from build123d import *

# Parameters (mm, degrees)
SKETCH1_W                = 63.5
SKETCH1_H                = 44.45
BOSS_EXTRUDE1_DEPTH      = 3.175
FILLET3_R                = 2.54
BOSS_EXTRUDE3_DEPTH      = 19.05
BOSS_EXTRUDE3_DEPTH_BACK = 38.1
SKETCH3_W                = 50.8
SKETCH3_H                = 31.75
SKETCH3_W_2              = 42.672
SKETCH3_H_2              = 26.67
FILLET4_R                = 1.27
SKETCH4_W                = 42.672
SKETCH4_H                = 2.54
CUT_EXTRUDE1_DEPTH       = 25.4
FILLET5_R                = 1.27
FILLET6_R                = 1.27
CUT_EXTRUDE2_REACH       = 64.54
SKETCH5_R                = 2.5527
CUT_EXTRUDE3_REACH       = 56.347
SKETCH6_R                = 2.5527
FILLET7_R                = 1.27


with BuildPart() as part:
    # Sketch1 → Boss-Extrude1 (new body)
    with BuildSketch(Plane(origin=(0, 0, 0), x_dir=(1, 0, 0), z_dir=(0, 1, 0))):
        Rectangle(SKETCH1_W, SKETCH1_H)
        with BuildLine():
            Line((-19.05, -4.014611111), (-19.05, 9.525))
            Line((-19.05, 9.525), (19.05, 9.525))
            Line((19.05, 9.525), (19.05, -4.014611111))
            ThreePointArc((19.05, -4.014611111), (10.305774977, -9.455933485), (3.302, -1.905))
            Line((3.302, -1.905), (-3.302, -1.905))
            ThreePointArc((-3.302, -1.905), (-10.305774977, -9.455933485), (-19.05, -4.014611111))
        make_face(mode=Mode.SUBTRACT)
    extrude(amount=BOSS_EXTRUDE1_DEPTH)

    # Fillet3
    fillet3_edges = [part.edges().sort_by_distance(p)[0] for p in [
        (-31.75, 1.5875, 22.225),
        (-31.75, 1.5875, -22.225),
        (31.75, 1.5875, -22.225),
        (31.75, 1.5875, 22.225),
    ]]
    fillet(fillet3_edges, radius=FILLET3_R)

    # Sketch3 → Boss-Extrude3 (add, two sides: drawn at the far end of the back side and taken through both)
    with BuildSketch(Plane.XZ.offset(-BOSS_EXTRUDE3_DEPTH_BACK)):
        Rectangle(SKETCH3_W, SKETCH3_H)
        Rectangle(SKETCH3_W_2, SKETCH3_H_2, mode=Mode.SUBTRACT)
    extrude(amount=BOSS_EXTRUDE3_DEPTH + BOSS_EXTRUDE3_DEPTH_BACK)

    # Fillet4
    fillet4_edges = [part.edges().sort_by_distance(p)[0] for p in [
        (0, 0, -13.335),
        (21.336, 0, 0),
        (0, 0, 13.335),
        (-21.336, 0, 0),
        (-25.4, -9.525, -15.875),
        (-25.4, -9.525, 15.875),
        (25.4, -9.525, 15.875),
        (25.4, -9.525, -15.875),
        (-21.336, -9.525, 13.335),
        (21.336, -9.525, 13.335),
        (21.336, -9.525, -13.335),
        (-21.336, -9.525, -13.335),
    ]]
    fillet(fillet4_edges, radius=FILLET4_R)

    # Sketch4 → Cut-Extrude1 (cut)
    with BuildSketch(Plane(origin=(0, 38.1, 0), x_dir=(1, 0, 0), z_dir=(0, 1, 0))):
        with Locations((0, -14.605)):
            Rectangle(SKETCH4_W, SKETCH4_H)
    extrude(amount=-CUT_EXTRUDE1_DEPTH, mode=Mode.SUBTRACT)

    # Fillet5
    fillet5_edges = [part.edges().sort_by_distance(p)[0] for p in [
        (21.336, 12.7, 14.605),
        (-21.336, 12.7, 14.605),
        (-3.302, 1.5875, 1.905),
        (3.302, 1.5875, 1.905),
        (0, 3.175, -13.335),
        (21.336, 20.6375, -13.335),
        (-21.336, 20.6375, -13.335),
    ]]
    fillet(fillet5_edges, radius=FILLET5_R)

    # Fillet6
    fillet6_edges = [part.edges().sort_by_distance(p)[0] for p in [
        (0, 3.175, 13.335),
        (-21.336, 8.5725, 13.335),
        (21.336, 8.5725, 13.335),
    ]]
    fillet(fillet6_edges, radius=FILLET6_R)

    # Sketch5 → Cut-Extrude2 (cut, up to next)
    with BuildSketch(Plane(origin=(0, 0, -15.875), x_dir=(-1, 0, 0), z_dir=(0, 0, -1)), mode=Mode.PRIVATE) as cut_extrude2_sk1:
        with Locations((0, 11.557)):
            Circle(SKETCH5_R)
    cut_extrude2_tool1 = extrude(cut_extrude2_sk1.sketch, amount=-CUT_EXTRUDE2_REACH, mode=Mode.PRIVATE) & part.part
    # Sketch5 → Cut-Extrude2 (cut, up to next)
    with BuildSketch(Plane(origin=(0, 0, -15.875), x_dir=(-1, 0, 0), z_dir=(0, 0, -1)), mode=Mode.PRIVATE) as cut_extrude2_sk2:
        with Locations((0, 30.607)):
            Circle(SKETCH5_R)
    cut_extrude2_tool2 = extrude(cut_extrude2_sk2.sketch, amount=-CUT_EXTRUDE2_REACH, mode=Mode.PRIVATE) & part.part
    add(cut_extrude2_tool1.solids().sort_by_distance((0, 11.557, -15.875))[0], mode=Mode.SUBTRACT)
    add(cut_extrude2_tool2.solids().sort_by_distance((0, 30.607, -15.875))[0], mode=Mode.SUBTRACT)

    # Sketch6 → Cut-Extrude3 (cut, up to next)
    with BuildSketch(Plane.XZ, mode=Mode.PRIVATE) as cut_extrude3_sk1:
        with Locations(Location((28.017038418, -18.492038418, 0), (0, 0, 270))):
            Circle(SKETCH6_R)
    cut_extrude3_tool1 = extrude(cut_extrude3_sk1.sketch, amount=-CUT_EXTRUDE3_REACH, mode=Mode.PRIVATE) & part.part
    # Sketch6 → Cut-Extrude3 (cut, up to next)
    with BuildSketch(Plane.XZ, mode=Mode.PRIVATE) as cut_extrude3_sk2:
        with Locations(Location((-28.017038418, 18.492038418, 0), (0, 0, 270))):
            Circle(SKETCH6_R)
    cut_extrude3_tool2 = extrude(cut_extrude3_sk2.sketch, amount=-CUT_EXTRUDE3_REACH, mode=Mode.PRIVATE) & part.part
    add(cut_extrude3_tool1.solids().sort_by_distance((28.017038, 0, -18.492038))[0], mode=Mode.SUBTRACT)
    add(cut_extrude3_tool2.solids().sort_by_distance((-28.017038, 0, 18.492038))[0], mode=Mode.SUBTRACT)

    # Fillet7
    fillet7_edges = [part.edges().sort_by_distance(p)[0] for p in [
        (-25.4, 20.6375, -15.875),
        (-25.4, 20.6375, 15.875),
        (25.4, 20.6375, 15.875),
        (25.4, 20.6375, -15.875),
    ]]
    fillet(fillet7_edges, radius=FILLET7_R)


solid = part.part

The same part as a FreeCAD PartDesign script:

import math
import FreeCAD as App
import Part
import Sketcher
Q = App.Units.Quantity


def edges_at(feature, points):
    """Names of the edges that pass closest to the given points."""
    edges = feature.Shape.Edges
    near = lambda p: min(range(len(edges)), key=lambda i: edges[i].distToShape(Part.Vertex(*p))[0])
    return sorted({f"Edge{near(p) + 1}" for p in points})


def add_polygon(sketch, points):
    """Adds a closed chain of lines whose ends are joined by coincident constraints."""
    first, n = sketch.GeometryCount, len(points)
    for a, b in zip(points, points[1:] + points[:1]):
        sketch.addGeometry(Part.LineSegment(App.Vector(*a, 0), App.Vector(*b, 0)), False)
    for i in range(n):
        sketch.addConstraint(Sketcher.Constraint("Coincident", first + i, 2, first + (i + 1) % n, 1))

doc = App.newDocument("Part")
params = doc.addObject("Spreadsheet::Sheet", "Params")
for row, (alias, value) in enumerate([
    ("sketch1_width", "2.5 in"),
    ("sketch1_width2", "1.5 in"),
    ("sketch1_width3", "0.26 in"),
    ("sketch1_height", "1.75 in"),
    ("pad1_length", "0.125 in"),
    ("fillet_radius", "0.1 in"),
    ("sketch2_width", "2 in"),
    ("sketch2_width2", "1.68 in"),
    ("sketch2_height", "1.25 in"),
    ("sketch2_height2", "1.05 in"),
    ("pad2_length", "0.75 in"),
    ("pad2_length2", "1.5 in"),
    ("fillet2_radius", "0.05 in"),
    ("sketch3_height", "0.1 in"),
    ("sketch3_width", "1.68 in"),
    ("pocket1_length", "1 in"),
    ("fillet3_radius", "0.05 in"),
    ("fillet4_radius", "0.05 in"),
    ("sketch4_diameter", "0.201 in"),
    ("sketch5_diameter", "0.201 in"),
    ("sketch6_diameter", "0.201 in"),
    ("sketch7_diameter", "0.201 in"),
    ("fillet5_radius", "0.05 in"),
], start=1):
    params.set(f"A{row}", alias)
    params.set(f"B{row}", "=" + value)
    params.setAlias(f"B{row}", alias)

body = doc.addObject("PartDesign::Body", "Body")

sketch1 = body.newObject("Sketcher::SketchObject", "Sketch")
sketch1.AttachmentSupport = (doc.getObject("XZ_Plane"), [""])
sketch1.MapMode = "FlatFace"
add_polygon(sketch1, [(-32, -22), (-32, 22), (32, 22), (32, -22)])
sketch1.addGeometry(Part.ArcOfCircle(Part.Circle(App.Vector(-11, 1, 0), App.Vector(0, 0, 1), 8), math.radians(3), math.radians(161)), False)
sketch1.addGeometry(Part.LineSegment(App.Vector(-19, 4, 0), App.Vector(-19, -10, 0)), False)
sketch1.addGeometry(Part.LineSegment(App.Vector(-19, -10, 0), App.Vector(19, -10, 0)), False)
sketch1.addGeometry(Part.LineSegment(App.Vector(19, -10, 0), App.Vector(19, 4, 0)), False)
sketch1.addGeometry(Part.ArcOfCircle(Part.Circle(App.Vector(11, 1, 0), App.Vector(0, 0, 1), 8), math.radians(19), math.radians(177)), False)
sketch1.addGeometry(Part.LineSegment(App.Vector(3, 2, 0), App.Vector(-3, 2, 0)), False)
sketch1.addConstraint([
    Sketcher.Constraint("Coincident", 4, 2, 5, 1),
    Sketcher.Constraint("Coincident", 5, 2, 6, 1),
    Sketcher.Constraint("Coincident", 6, 2, 7, 1),
    Sketcher.Constraint("Coincident", 7, 2, 8, 1),
    Sketcher.Constraint("Coincident", 8, 2, 9, 1),
    Sketcher.Constraint("Coincident", 9, 2, 4, 1),
    Sketcher.Constraint("Vertical", 0),
    Sketcher.Constraint("Horizontal", 1),
    Sketcher.Constraint("Vertical", 2),
    Sketcher.Constraint("Horizontal", 3),
    Sketcher.Constraint("Vertical", 5),
    Sketcher.Constraint("Horizontal", 6),
    Sketcher.Constraint("Vertical", 7),
    Sketcher.Constraint("Horizontal", 9),
    Sketcher.Constraint("Equal", 4, 8),
    Sketcher.Constraint("Symmetric", 0, 2, 2, 2, -1, 1),
    Sketcher.Constraint("Symmetric", 4, 3, 8, 3, -2),
    Sketcher.Constraint("Horizontal", 4, 2, 7, 2),
    Sketcher.Constraint("DistanceX", 1, 1, 1, 2, Q("2.5 in")),
    Sketcher.Constraint("DistanceX", 6, 1, 6, 2, Q("1.5 in")),
    Sketcher.Constraint("DistanceX", 9, 2, 9, 1, Q("0.26 in")),
    Sketcher.Constraint("DistanceY", 0, 1, 0, 2, Q("1.75 in")),
    Sketcher.Constraint("DistanceY", 3, 2, 5, 2, Q("0.5 in")),
    Sketcher.Constraint("DistanceY", 6, 2, 8, 2, Q("0.45 in")),
    Sketcher.Constraint("Radius", 4, Q("8.09177 mm")),
    Sketcher.Constraint("DistanceY", 5, 2, 5, 1, Q("13.539611 mm")),
])
sketch1.setExpression("Constraints[22]", "Params.sketch1_width")
sketch1.setExpression("Constraints[23]", "Params.sketch1_width2")
sketch1.setExpression("Constraints[24]", "Params.sketch1_width3")
sketch1.setExpression("Constraints[25]", "Params.sketch1_height")
pad1 = body.newObject("PartDesign::Pad", "Pad")
pad1.Profile = sketch1
pad1.setExpression("Length", "Params.pad1_length")
pad1.Reversed = True
doc.recompute()

fillet = body.newObject("PartDesign::Fillet", "Fillet")
fillet.Base = (pad1, edges_at(pad1, [
    (-31.75, 1.587, 22.225),
    (-31.75, 1.587, -22.225),
    (31.75, 1.587, -22.225),
    (31.75, 1.587, 22.225),
]))
fillet.setExpression("Radius", "Params.fillet_radius")

sketch2 = body.newObject("Sketcher::SketchObject", "Sketch001")
sketch2.AttachmentSupport = (doc.getObject("XZ_Plane"), [""])
sketch2.MapMode = "FlatFace"
add_polygon(sketch2, [(-25, 16), (-25, -16), (25, -16), (25, 16)])
add_polygon(sketch2, [(21, -13), (-21, -13), (-21, 13), (21, 13)])
sketch2.addConstraint([
    Sketcher.Constraint("Vertical", 0),
    Sketcher.Constraint("Horizontal", 1),
    Sketcher.Constraint("Vertical", 2),
    Sketcher.Constraint("Horizontal", 3),
    Sketcher.Constraint("Horizontal", 4),
    Sketcher.Constraint("Vertical", 5),
    Sketcher.Constraint("Horizontal", 6),
    Sketcher.Constraint("Vertical", 7),
    Sketcher.Constraint("Symmetric", 0, 2, 2, 2, -1, 1),
    Sketcher.Constraint("Symmetric", 4, 2, 6, 2, -1, 1),
    Sketcher.Constraint("DistanceX", 1, 1, 1, 2, Q("2 in")),
    Sketcher.Constraint("DistanceX", 4, 2, 4, 1, Q("1.68 in")),
    Sketcher.Constraint("DistanceY", 0, 2, 0, 1, Q("1.25 in")),
    Sketcher.Constraint("DistanceY", 5, 1, 5, 2, Q("1.05 in")),
])
sketch2.setExpression("Constraints[18]", "Params.sketch2_width")
sketch2.setExpression("Constraints[19]", "Params.sketch2_width2")
sketch2.setExpression("Constraints[20]", "Params.sketch2_height")
sketch2.setExpression("Constraints[21]", "Params.sketch2_height2")
pad2 = body.newObject("PartDesign::Pad", "Pad001")
pad2.Profile = sketch2
pad2.Type = "TwoLengths"
pad2.setExpression("Length", "Params.pad2_length")
pad2.setExpression("Length2", "Params.pad2_length2")
doc.recompute()

fillet2 = body.newObject("PartDesign::Fillet", "Fillet001")
fillet2.Base = (pad2, edges_at(pad2, [
    (0, 0, -13.335),
    (21.336, 0, 0),
    (0, 0, 13.335),
    (-21.336, 0, 0),
    (-25.4, -9.525, -15.875),
    (-25.4, -9.525, 15.875),
    (25.4, -9.525, 15.875),
    (25.4, -9.525, -15.875),
    (-21.336, -9.525, 13.335),
    (21.336, -9.525, 13.335),
    (21.336, -9.525, -13.335),
    (-21.336, -9.525, -13.335),
]))
fillet2.setExpression("Radius", "Params.fillet2_radius")

sketch3 = body.newObject("Sketcher::SketchObject", "Sketch002")
sketch3.AttachmentSupport = (doc.getObject("XZ_Plane"), [""])
sketch3.MapMode = "FlatFace"
sketch3.AttachmentOffset = App.Placement(App.Vector(0, 0, -1.5 * 25.4), App.Rotation())
add_polygon(sketch3, [(-21.3, 13.3), (-21.3, 15.9), (21.3, 15.9), (21.3, 13.3)])
sketch3.addConstraint([
    Sketcher.Constraint("Vertical", 0),
    Sketcher.Constraint("Horizontal", 1),
    Sketcher.Constraint("Vertical", 2),
    Sketcher.Constraint("Horizontal", 3),
    Sketcher.Constraint("DistanceY", 0, 1, 0, 2, Q("0.1 in")),
    Sketcher.Constraint("DistanceX", 1, 1, 1, 2, Q("1.68 in")),
    Sketcher.Constraint("DistanceX", 0, 2, -1, 1, Q("0.84 in")),
    Sketcher.Constraint("DistanceY", -1, 1, 0, 2, Q("0.625 in")),
])
sketch3.setExpression("Constraints[8]", "Params.sketch3_height")
sketch3.setExpression("Constraints[9]", "Params.sketch3_width")
pocket1 = body.newObject("PartDesign::Pocket", "Pocket")
pocket1.Profile = sketch3
pocket1.setExpression("Length", "Params.pocket1_length")
pocket1.Reversed = True
doc.recompute()

fillet3 = body.newObject("PartDesign::Fillet", "Fillet002")
fillet3.Base = (pocket1, edges_at(pocket1, [
    (21.336, 12.7, 14.605),
    (-21.336, 12.7, 14.605),
    (-3.302, 1.587, 1.905),
    (3.302, 1.587, 1.905),
    (0, 3.175, -13.335),
    (21.336, 20.637, -13.335),
    (-21.336, 20.637, -13.335),
]))
fillet3.setExpression("Radius", "Params.fillet3_radius")
doc.recompute()

fillet4 = body.newObject("PartDesign::Fillet", "Fillet003")
fillet4.Base = (fillet3, edges_at(fillet3, [(0, 3.175, 13.335), (-21.336, 8.572, 13.335), (21.336, 8.572, 13.335)]))
fillet4.setExpression("Radius", "Params.fillet4_radius")

sketch4 = body.newObject("Sketcher::SketchObject", "Sketch003")
sketch4.AttachmentSupport = (doc.getObject("XY_Plane"), [""])
sketch4.MapMode = "FlatFace"
sketch4.AttachmentOffset = App.Placement(App.Vector(0, 0, -0.625 * 25.4), App.Rotation())
sketch4.addGeometry(Part.Circle(App.Vector(0, 11.6, 0), App.Vector(0, 0, 1), 2.6), False)
sketch4.addConstraint([
    Sketcher.Constraint("PointOnObject", 0, 3, -2),
    Sketcher.Constraint("Diameter", 0, Q("0.201 in")),
    Sketcher.Constraint("DistanceY", -1, 1, 0, 3, Q("0.455 in")),
])
sketch4.setExpression("Constraints[1]", "Params.sketch4_diameter")
pocket2 = body.newObject("PartDesign::Pocket", "Pocket001")
pocket2.Profile = sketch4
pocket2.Type = "UpToFirst"
pocket2.Reversed = True

sketch5 = body.newObject("Sketcher::SketchObject", "Sketch004")
sketch5.AttachmentSupport = (doc.getObject("XY_Plane"), [""])
sketch5.MapMode = "FlatFace"
sketch5.AttachmentOffset = App.Placement(App.Vector(0, 0, -0.625 * 25.4), App.Rotation())
sketch5.addGeometry(Part.Circle(App.Vector(0, 30.6, 0), App.Vector(0, 0, 1), 2.6), False)
sketch5.addConstraint([
    Sketcher.Constraint("PointOnObject", 0, 3, -2),
    Sketcher.Constraint("Diameter", 0, Q("0.201 in")),
    Sketcher.Constraint("DistanceY", -1, 1, 0, 3, Q("1.205 in")),
])
sketch5.setExpression("Constraints[1]", "Params.sketch5_diameter")
pocket3 = body.newObject("PartDesign::Pocket", "Pocket002")
pocket3.Profile = sketch5
pocket3.Type = "UpToFirst"
pocket3.Reversed = True

sketch6 = body.newObject("Sketcher::SketchObject", "Sketch005")
sketch6.AttachmentSupport = (doc.getObject("XZ_Plane"), [""])
sketch6.MapMode = "FlatFace"
sketch6.addGeometry(Part.Circle(App.Vector(28, -18.5, 0), App.Vector(0, 0, 1), 2.6), False)
sketch6.addConstraint([
    Sketcher.Constraint("Diameter", 0, Q("0.201 in")),
    Sketcher.Constraint("DistanceX", -1, 1, 0, 3, Q("28.017038 mm")),
    Sketcher.Constraint("DistanceY", 0, 3, -1, 1, Q("18.492038 mm")),
])
sketch6.setExpression("Constraints[0]", "Params.sketch6_diameter")
pocket4 = body.newObject("PartDesign::Pocket", "Pocket003")
pocket4.Profile = sketch6
pocket4.Type = "UpToFirst"

sketch7 = body.newObject("Sketcher::SketchObject", "Sketch006")
sketch7.AttachmentSupport = (doc.getObject("XZ_Plane"), [""])
sketch7.MapMode = "FlatFace"
sketch7.addGeometry(Part.Circle(App.Vector(-28, 18.5, 0), App.Vector(0, 0, 1), 2.6), False)
sketch7.addConstraint([
    Sketcher.Constraint("Diameter", 0, Q("0.201 in")),
    Sketcher.Constraint("DistanceX", 0, 3, -1, 1, Q("28.017038 mm")),
    Sketcher.Constraint("DistanceY", -1, 1, 0, 3, Q("18.492038 mm")),
])
sketch7.setExpression("Constraints[0]", "Params.sketch7_diameter")
pocket5 = body.newObject("PartDesign::Pocket", "Pocket004")
pocket5.Profile = sketch7
pocket5.Type = "UpToFirst"
doc.recompute()

fillet5 = body.newObject("PartDesign::Fillet", "Fillet004")
fillet5.Base = (pocket5, edges_at(pocket5, [
    (-25.4, 20.637, -15.875),
    (-25.4, 20.637, 15.875),
    (25.4, 20.637, 15.875),
    (25.4, 20.637, -15.875),
]))
fillet5.setExpression("Radius", "Params.fillet5_radius")

doc.recompute()
